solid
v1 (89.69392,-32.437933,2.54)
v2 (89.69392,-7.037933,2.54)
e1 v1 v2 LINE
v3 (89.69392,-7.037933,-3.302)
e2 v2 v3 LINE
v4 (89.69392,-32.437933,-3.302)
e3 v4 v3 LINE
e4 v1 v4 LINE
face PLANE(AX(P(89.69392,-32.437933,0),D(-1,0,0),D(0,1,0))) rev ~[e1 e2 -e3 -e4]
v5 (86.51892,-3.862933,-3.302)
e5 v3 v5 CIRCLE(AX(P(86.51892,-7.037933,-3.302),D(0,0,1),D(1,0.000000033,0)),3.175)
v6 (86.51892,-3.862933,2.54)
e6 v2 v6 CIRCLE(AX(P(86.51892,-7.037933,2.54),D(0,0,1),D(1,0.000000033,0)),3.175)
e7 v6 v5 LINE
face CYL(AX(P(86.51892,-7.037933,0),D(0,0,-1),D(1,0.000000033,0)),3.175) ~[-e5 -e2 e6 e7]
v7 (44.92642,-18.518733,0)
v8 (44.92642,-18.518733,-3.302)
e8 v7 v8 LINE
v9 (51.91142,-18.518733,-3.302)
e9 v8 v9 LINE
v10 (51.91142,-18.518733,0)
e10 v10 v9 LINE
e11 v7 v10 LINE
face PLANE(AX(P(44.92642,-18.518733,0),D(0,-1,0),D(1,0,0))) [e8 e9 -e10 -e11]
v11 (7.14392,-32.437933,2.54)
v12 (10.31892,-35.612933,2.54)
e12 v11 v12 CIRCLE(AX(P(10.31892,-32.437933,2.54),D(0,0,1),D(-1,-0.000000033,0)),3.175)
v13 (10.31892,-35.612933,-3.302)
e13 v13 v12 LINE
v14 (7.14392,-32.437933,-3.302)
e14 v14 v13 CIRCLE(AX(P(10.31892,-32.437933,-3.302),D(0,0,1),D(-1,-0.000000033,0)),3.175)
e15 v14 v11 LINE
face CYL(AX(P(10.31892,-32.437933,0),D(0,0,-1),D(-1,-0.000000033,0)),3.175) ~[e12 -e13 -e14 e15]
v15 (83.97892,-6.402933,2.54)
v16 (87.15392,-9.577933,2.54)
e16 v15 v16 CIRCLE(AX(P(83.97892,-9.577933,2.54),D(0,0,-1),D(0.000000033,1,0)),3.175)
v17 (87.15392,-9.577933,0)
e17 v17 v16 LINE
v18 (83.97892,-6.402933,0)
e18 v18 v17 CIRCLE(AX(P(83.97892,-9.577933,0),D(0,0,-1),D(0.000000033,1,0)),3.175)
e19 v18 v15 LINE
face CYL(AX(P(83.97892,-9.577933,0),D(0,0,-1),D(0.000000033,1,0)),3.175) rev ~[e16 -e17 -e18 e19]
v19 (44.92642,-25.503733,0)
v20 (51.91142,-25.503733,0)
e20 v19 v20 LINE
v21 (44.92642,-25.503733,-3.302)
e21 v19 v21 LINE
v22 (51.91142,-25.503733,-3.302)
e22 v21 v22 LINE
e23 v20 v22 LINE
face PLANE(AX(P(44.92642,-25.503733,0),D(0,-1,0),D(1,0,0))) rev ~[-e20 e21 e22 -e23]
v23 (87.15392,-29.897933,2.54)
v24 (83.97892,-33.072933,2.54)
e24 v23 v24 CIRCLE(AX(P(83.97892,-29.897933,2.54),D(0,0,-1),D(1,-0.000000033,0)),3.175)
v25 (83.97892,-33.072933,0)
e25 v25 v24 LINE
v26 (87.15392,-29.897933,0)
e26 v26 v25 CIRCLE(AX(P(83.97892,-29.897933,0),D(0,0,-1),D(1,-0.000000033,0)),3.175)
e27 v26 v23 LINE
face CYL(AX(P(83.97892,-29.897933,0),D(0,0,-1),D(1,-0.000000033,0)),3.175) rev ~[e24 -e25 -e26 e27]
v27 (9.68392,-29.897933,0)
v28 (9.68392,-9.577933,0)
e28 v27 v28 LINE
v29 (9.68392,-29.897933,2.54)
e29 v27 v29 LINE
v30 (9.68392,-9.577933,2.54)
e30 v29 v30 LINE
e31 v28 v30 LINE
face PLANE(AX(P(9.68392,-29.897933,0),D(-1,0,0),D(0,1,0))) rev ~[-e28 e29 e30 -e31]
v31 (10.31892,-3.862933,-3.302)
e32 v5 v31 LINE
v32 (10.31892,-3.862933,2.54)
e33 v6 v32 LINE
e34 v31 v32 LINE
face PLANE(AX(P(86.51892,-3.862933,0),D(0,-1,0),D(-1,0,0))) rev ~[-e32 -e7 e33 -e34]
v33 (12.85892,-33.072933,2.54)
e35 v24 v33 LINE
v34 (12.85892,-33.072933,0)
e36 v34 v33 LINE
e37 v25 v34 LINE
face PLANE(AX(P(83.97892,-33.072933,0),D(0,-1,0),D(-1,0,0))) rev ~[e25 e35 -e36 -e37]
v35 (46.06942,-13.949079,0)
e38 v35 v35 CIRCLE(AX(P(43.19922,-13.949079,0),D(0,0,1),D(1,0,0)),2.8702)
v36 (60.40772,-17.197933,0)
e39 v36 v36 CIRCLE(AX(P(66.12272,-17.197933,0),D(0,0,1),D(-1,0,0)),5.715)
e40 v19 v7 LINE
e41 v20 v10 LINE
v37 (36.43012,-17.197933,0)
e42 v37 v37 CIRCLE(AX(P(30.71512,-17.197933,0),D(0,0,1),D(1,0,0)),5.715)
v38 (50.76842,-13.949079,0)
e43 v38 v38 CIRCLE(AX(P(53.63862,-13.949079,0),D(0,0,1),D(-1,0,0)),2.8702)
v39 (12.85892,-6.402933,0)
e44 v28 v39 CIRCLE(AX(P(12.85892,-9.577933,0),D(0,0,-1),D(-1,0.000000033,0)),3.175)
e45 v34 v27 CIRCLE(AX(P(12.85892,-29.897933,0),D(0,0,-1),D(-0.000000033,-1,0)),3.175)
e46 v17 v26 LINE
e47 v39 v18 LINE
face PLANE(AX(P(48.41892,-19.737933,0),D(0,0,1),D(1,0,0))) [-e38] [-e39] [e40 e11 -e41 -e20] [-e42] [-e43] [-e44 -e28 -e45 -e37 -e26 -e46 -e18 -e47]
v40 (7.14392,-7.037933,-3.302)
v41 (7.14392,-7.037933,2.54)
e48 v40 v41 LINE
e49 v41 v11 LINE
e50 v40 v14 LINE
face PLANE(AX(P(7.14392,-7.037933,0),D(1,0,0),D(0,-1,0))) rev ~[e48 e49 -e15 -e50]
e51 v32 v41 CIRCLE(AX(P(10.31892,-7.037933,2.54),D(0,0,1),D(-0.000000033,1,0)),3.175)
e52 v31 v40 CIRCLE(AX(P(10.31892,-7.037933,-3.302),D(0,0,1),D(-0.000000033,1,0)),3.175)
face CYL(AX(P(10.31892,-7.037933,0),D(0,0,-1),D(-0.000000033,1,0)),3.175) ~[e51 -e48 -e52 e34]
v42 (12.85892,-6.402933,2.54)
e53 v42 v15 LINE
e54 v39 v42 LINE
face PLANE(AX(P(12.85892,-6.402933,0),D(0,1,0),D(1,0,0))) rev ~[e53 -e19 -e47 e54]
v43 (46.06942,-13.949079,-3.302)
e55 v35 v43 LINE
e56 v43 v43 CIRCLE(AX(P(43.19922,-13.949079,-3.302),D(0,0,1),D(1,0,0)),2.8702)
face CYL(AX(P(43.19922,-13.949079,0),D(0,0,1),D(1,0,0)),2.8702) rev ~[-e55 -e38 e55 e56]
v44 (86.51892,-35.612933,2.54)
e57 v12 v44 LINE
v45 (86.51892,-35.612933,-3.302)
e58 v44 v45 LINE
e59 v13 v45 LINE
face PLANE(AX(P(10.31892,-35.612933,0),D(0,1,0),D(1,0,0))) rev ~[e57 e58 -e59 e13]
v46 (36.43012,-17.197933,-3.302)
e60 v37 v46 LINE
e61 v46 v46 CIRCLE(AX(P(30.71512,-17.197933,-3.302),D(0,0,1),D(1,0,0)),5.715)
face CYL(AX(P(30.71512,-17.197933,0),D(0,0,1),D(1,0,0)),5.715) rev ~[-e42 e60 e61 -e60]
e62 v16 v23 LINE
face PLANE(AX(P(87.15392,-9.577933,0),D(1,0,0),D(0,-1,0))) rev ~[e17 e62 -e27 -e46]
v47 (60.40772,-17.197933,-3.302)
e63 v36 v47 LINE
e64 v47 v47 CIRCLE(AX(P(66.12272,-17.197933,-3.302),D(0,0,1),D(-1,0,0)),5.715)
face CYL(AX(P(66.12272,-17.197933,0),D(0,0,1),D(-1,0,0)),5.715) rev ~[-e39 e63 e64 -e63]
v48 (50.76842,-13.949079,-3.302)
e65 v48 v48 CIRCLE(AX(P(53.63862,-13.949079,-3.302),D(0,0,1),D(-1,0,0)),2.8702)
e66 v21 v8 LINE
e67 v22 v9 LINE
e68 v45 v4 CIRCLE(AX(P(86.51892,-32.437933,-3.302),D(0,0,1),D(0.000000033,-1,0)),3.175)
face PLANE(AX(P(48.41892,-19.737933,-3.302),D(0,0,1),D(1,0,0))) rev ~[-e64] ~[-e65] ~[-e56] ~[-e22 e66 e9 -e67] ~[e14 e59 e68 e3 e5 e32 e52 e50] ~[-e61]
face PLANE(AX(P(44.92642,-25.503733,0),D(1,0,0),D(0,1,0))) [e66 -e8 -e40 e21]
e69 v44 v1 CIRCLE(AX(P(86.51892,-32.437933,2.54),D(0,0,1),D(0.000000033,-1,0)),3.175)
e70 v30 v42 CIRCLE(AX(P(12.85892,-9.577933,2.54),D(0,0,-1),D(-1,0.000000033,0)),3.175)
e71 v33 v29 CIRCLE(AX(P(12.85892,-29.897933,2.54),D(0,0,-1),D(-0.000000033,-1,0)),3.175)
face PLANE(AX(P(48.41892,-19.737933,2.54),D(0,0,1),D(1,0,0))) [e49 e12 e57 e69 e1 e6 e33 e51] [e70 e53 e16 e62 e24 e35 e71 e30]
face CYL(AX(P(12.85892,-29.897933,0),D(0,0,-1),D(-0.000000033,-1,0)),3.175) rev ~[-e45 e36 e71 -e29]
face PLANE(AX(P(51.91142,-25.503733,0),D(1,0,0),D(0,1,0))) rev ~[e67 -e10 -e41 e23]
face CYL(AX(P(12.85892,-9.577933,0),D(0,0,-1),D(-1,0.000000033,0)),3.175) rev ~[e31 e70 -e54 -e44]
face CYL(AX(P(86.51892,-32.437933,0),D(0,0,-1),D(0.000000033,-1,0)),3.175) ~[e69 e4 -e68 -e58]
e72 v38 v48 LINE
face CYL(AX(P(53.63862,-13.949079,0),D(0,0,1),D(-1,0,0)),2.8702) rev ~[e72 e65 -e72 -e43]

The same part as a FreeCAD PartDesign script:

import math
import FreeCAD as App
import Part
import Sketcher
Q = App.Units.Quantity


def add_polygon(sketch, points):
    """Adds a closed chain of lines whose ends are joined by coincident constraints."""
    first, n = sketch.GeometryCount, len(points)
    for a, b in zip(points, points[1:] + points[:1]):
        sketch.addGeometry(Part.LineSegment(App.Vector(*a, 0), App.Vector(*b, 0)), False)
    for i in range(n):
        sketch.addConstraint(Sketcher.Constraint("Coincident", first + i, 2, first + (i + 1) % n, 1))

doc = App.newDocument("Part")
body = doc.addObject("PartDesign::Body", "Body")

# Sketch on XY plane
sketch1 = body.newObject("Sketcher::SketchObject", "Sketch")
sketch1.AttachmentSupport = (doc.getObject("XY_Plane"), [""])
sketch1.MapMode = "FlatFace"
sketch1.addGeometry(Part.LineSegment(App.Vector(86.51892, -3.862933, 0), App.Vector(10.31892, -3.862933, 0)), False)
sketch1.addGeometry(Part.ArcOfCircle(Part.Circle(App.Vector(10.31892, -7.037933, 0), App.Vector(0, 0, 1), 3.175), math.radians(90.000002), math.radians(179.999998)), False)
sketch1.addGeometry(Part.LineSegment(App.Vector(7.14392, -7.037933, 0), App.Vector(7.14392, -32.437933, 0)), False)
sketch1.addGeometry(Part.ArcOfCircle(Part.Circle(App.Vector(10.31892, -32.437933, 0), App.Vector(0, 0, 1), 3.175), math.radians(-179.999998), math.radians(-90.000002)), False)
sketch1.addGeometry(Part.LineSegment(App.Vector(10.31892, -35.612933, 0), App.Vector(86.51892, -35.612933, 0)), False)
sketch1.addGeometry(Part.ArcOfCircle(Part.Circle(App.Vector(86.51892, -32.437933, 0), App.Vector(0, 0, 1), 3.175), math.radians(-89.999998), math.radians(-0.000002)), False)
sketch1.addGeometry(Part.LineSegment(App.Vector(89.69392, -32.437933, 0), App.Vector(89.69392, -7.037933, 0)), False)
sketch1.addGeometry(Part.ArcOfCircle(Part.Circle(App.Vector(86.51892, -7.037933, 0), App.Vector(0, 0, 1), 3.175), math.radians(0.000002), math.radians(89.999998)), False)
sketch1.addConstraint(Sketcher.Constraint("Tangent", 0, 2, 1, 1))
sketch1.addConstraint(Sketcher.Constraint("Tangent", 1, 2, 2, 1))
sketch1.addConstraint(Sketcher.Constraint("Tangent", 2, 2, 3, 1))
sketch1.addConstraint(Sketcher.Constraint("Tangent", 3, 2, 4, 1))
sketch1.addConstraint(Sketcher.Constraint("Tangent", 4, 2, 5, 1))
sketch1.addConstraint(Sketcher.Constraint("Tangent", 5, 2, 6, 1))
sketch1.addConstraint(Sketcher.Constraint("Tangent", 6, 2, 7, 1))
sketch1.addConstraint(Sketcher.Constraint("Tangent", 7, 2, 0, 1))
sketch1.addConstraint(Sketcher.Constraint("Horizontal", 0))
sketch1.addConstraint(Sketcher.Constraint("Vertical", 2))
sketch1.addConstraint(Sketcher.Constraint("Horizontal", 4))
sketch1.addConstraint(Sketcher.Constraint("Vertical", 6))
sketch1.addConstraint(Sketcher.Constraint("Equal", 1, 3))
sketch1.addConstraint(Sketcher.Constraint("Equal", 3, 5))
sketch1.addConstraint(Sketcher.Constraint("Equal", 5, 7))
sketch1.addConstraint(Sketcher.Constraint("DistanceX", 0, 2, 0, 1, Q("3 in")))
sketch1.addConstraint(Sketcher.Constraint("DistanceY", 2, 2, 2, 1, Q("1 in")))
sketch1.addConstraint(Sketcher.Constraint("Radius", 1, Q("0.125 in")))
sketch1.addConstraint(Sketcher.Constraint("DistanceX", -1, 1, 1, 3, Q("10.31892 mm")))
sketch1.addConstraint(Sketcher.Constraint("DistanceY", 1, 3, -1, 1, Q("7.037933 mm")))
pad1 = body.newObject("PartDesign::Pad", "Pad")
pad1.Profile = sketch1
pad1.Length = Q("0.13 in")
pad1.Reversed = True

# Sketch on XY plane
sketch2 = body.newObject("Sketcher::SketchObject", "Sketch001")
sketch2.AttachmentSupport = (doc.getObject("XY_Plane"), [""])
sketch2.MapMode = "FlatFace"
sketch2.addGeometry(Part.LineSegment(App.Vector(86.51892, -3.862933, 0), App.Vector(10.31892, -3.862933, 0)), False)
sketch2.addGeometry(Part.ArcOfCircle(Part.Circle(App.Vector(10.31892, -7.037933, 0), App.Vector(0, 0, 1), 3.175), math.radians(90.000002), math.radians(179.999998)), False)
sketch2.addGeometry(Part.LineSegment(App.Vector(7.14392, -7.037933, 0), App.Vector(7.14392, -32.437933, 0)), False)
sketch2.addGeometry(Part.ArcOfCircle(Part.Circle(App.Vector(10.31892, -32.437933, 0), App.Vector(0, 0, 1), 3.175), math.radians(-179.999998), math.radians(-90.000002)), False)
sketch2.addGeometry(Part.LineSegment(App.Vector(10.31892, -35.612933, 0), App.Vector(86.51892, -35.612933, 0)), False)
sketch2.addGeometry(Part.ArcOfCircle(Part.Circle(App.Vector(86.51892, -32.437933, 0), App.Vector(0, 0, 1), 3.175), math.radians(-89.999998), math.radians(-0.000002)), False)
sketch2.addGeometry(Part.LineSegment(App.Vector(89.69392, -32.437933, 0), App.Vector(89.69392, -7.037933, 0)), False)
sketch2.addGeometry(Part.ArcOfCircle(Part.Circle(App.Vector(86.51892, -7.037933, 0), App.Vector(0, 0, 1), 3.175), math.radians(0.000002), math.radians(89.999998)), False)
sketch2.addGeometry(Part.ArcOfCircle(Part.Circle(App.Vector(83.97892, -29.897933, 0), App.Vector(0, 0, 1), 3.175), math.radians(-89.999998), math.radians(-0.000002)), False)
sketch2.addGeometry(Part.LineSegment(App.Vector(83.97892, -33.072933, 0), App.Vector(12.85892, -33.072933, 0)), False)
sketch2.addGeometry(Part.ArcOfCircle(Part.Circle(App.Vector(12.85892, -29.897933, 0), App.Vector(0, 0, 1), 3.175), math.radians(-179.999998), math.radians(-90.000002)), False)
sketch2.addGeometry(Part.LineSegment(App.Vector(9.68392, -29.897933, 0), App.Vector(9.68392, -9.577933, 0)), False)
sketch2.addGeometry(Part.ArcOfCircle(Part.Circle(App.Vector(12.85892, -9.577933, 0), App.Vector(0, 0, 1), 3.175), math.radians(90.000002), math.radians(179.999998)), False)
sketch2.addGeometry(Part.LineSegment(App.Vector(12.85892, -6.402933, 0), App.Vector(83.97892, -6.402933, 0)), False)
sketch2.addGeometry(Part.ArcOfCircle(Part.Circle(App.Vector(83.97892, -9.577933, 0), App.Vector(0, 0, 1), 3.175), math.radians(0.000002), math.radians(89.999998)), False)
sketch2.addGeometry(Part.LineSegment(App.Vector(87.15392, -9.577933, 0), App.Vector(87.15392, -29.897933, 0)), False)
sketch2.addConstraint(Sketcher.Constraint("Tangent", 0, 2, 1, 1))
sketch2.addConstraint(Sketcher.Constraint("Tangent", 1, 2, 2, 1))
sketch2.addConstraint(Sketcher.Constraint("Tangent", 2, 2, 3, 1))
sketch2.addConstraint(Sketcher.Constraint("Tangent", 3, 2, 4, 1))
sketch2.addConstraint(Sketcher.Constraint("Tangent", 4, 2, 5, 1))
sketch2.addConstraint(Sketcher.Constraint("Tangent", 5, 2, 6, 1))
sketch2.addConstraint(Sketcher.Constraint("Tangent", 6, 2, 7, 1))
sketch2.addConstraint(Sketcher.Constraint("Tangent", 7, 2, 0, 1))
sketch2.addConstraint(Sketcher.Constraint("Tangent", 8, 1, 9, 1))
sketch2.addConstraint(Sketcher.Constraint("Tangent", 9, 2, 10, 2))
sketch2.addConstraint(Sketcher.Constraint("Tangent", 10, 1, 11, 1))
sketch2.addConstraint(Sketcher.Constraint("Tangent", 11, 2, 12, 2))
sketch2.addConstraint(Sketcher.Constraint("Tangent", 12, 1, 13, 1))
sketch2.addConstraint(Sketcher.Constraint("Tangent", 13, 2, 14, 2))
sketch2.addConstraint(Sketcher.Constraint("Tangent", 14, 1, 15, 1))
sketch2.addConstraint(Sketcher.Constraint("Tangent", 15, 2, 8, 2))
sketch2.addConstraint(Sketcher.Constraint("Horizontal", 0))
sketch2.addConstraint(Sketcher.Constraint("Vertical", 2))
sketch2.addConstraint(Sketcher.Constraint("Horizontal", 4))
sketch2.addConstraint(Sketcher.Constraint("Vertical", 6))
sketch2.addConstraint(Sketcher.Constraint("Horizontal", 9))
sketch2.addConstraint(Sketcher.Constraint("Vertical", 11))
sketch2.addConstraint(Sketcher.Constraint("Horizontal", 13))
sketch2.addConstraint(Sketcher.Constraint("Vertical", 15))
sketch2.addConstraint(Sketcher.Constraint("Equal", 1, 3))
sketch2.addConstraint(Sketcher.Constraint("Equal", 3, 5))
sketch2.addConstraint(Sketcher.Constraint("Equal", 5, 7))
sketch2.addConstraint(Sketcher.Constraint("Equal", 7, 8))
sketch2.addConstraint(Sketcher.Constraint("Equal", 8, 10))
sketch2.addConstraint(Sketcher.Constraint("Equal", 10, 12))
sketch2.addConstraint(Sketcher.Constraint("Equal", 12, 14))
sketch2.addConstraint(Sketcher.Constraint("DistanceX", 0, 2, 0, 1, Q("3 in")))
sketch2.addConstraint(Sketcher.Constraint("DistanceY", 2, 2, 2, 1, Q("1 in")))
sketch2.addConstraint(Sketcher.Constraint("DistanceX", 9, 2, 9, 1, Q("2.8 in")))
sketch2.addConstraint(Sketcher.Constraint("DistanceY", 11, 1, 11, 2, Q("0.8 in")))
sketch2.addConstraint(Sketcher.Constraint("Radius", 1, Q("0.125 in")))
sketch2.addConstraint(Sketcher.Constraint("DistanceX", 8, 3, 5, 3, Q("0.1 in")))
sketch2.addConstraint(Sketcher.Constraint("DistanceY", 5, 3, 8, 3, Q("0.1 in")))
sketch2.addConstraint(Sketcher.Constraint("DistanceX", -1, 1, 1, 3, Q("10.31892 mm")))
sketch2.addConstraint(Sketcher.Constraint("DistanceY", 1, 3, -1, 1, Q("7.037933 mm")))
pad2 = body.newObject("PartDesign::Pad", "Pad001")
pad2.Profile = sketch2
pad2.Length = Q("0.1 in")

# Sketch on XY plane
sketch3 = body.newObject("Sketcher::SketchObject", "Sketch002")
sketch3.AttachmentSupport = (doc.getObject("XY_Plane"), [""])
sketch3.MapMode = "FlatFace"
sketch3.addGeometry(Part.Circle(App.Vector(30.71512, -17.197933, 0), App.Vector(0, 0, 1), 5.715), False)  # 0
sketch3.addGeometry(Part.Circle(App.Vector(66.12272, -17.197933, 0), App.Vector(0, 0, 1), 5.715), False)  # 1
add_polygon(sketch3, [(44.92642, -18.518733), (44.92642, -25.503733), (51.91142, -25.503733), (51.91142, -18.518733)])  # lines 2-5
sketch3.addGeometry(Part.Circle(App.Vector(43.19922, -13.949079, 0), App.Vector(0, 0, 1), 2.8702), False)  # 6
sketch3.addGeometry(Part.Circle(App.Vector(53.63862, -13.949079, 0), App.Vector(0, 0, 1), 2.8702), False)  # 7
sketch3.addConstraint(Sketcher.Constraint("Vertical", 2))
sketch3.addConstraint(Sketcher.Constraint("Horizontal", 3))
sketch3.addConstraint(Sketcher.Constraint("Vertical", 4))
sketch3.addConstraint(Sketcher.Constraint("Horizontal", 5))
sketch3.addConstraint(Sketcher.Constraint("Equal", 0, 1))
sketch3.addConstraint(Sketcher.Constraint("Equal", 6, 7))
sketch3.addConstraint(Sketcher.Constraint("Horizontal", 0, 3, 1, 3))
sketch3.addConstraint(Sketcher.Constraint("Horizontal", 6, 3, 7, 3))
sketch3.addConstraint(Sketcher.Constraint("Equal", 5, 2))
sketch3.addConstraint(Sketcher.Constraint("Diameter", 0, Q("0.45 in")))
sketch3.addConstraint(Sketcher.Constraint("Diameter", 6, Q("0.226 in")))
sketch3.addConstraint(Sketcher.Constraint("DistanceX", 3, 1, 3, 2, Q("0.275 in")))
sketch3.addConstraint(Sketcher.Constraint("DistanceX", 0, 3, 1, 3, Q("1.394 in")))
sketch3.addConstraint(Sketcher.Constraint("DistanceX", 6, 3, 7, 3, Q("0.411 in")))
sketch3.addConstraint(Sketcher.Constraint("DistanceX", 6, 3, 2, 2, Q("0.068 in")))
sketch3.addConstraint(Sketcher.Constraint("DistanceY", 2, 2, 0, 3, Q("0.327 in")))
sketch3.addConstraint(Sketcher.Constraint("DistanceX", 0, 3, 6, 3, Q("0.4915 in")))
sketch3.addConstraint(Sketcher.Constraint("DistanceX", -1, 1, 0, 3, Q("30.71512 mm")))
sketch3.addConstraint(Sketcher.Constraint("DistanceY", 6, 3, -1, 1, Q("13.949079 mm")))
sketch3.addConstraint(Sketcher.Constraint("DistanceY", 0, 3, -1, 1, Q("17.197933 mm")))
pocket1 = body.newObject("PartDesign::Pocket", "Pocket")
pocket1.Profile = sketch3
pocket1.Type = "ThroughAll"

doc.recompute()
